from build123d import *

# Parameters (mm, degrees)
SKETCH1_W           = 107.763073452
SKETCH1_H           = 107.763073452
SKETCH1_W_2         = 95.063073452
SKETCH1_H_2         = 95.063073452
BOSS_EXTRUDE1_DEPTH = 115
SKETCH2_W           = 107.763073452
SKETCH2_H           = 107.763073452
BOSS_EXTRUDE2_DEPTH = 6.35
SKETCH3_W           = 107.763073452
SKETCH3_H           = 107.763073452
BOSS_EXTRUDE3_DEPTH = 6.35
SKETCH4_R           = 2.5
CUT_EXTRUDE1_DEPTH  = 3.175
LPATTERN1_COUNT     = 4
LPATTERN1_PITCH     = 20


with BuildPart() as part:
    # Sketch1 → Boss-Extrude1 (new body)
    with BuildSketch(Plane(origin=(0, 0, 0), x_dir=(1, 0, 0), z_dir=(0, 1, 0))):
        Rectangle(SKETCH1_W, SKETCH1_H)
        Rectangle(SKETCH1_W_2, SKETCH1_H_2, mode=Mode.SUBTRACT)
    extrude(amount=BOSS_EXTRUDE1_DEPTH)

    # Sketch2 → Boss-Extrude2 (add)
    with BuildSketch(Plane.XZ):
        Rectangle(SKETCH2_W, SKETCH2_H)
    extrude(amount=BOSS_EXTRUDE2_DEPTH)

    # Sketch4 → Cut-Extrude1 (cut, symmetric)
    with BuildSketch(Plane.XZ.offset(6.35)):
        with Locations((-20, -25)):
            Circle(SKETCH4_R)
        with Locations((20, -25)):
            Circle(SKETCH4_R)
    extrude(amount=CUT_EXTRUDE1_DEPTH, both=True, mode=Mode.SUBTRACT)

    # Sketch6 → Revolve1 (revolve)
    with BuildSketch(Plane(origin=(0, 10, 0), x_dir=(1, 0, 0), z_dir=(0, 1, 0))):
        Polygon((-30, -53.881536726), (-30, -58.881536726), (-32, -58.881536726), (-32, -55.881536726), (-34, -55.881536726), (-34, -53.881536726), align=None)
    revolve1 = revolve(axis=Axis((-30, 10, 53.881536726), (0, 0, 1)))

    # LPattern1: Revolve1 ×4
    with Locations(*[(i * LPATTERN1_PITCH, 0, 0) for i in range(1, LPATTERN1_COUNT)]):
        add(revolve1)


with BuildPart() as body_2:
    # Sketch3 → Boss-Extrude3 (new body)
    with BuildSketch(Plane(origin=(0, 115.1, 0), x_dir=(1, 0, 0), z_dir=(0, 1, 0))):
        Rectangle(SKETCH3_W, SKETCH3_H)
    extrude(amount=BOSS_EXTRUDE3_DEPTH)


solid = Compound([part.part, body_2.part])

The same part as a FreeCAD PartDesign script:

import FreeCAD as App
import Part
import Sketcher
Q = App.Units.Quantity


def add_polygon(sketch, points):
    """Adds a closed chain of lines whose ends are joined by coincident constraints."""
    first, n = sketch.GeometryCount, len(points)
    for a, b in zip(points, points[1:] + points[:1]):
        sketch.addGeometry(Part.LineSegment(App.Vector(*a, 0), App.Vector(*b, 0)), False)
    for i in range(n):
        sketch.addConstraint(Sketcher.Constraint("Coincident", first + i, 2, first + (i + 1) % n, 1))

doc = App.newDocument("Part")
body = doc.addObject("PartDesign::Body", "Body")

# Sketch on XZ plane
sketch1 = body.newObject("Sketcher::SketchObject", "Sketch")
sketch1.AttachmentSupport = (doc.getObject("XZ_Plane"), [""])
sketch1.MapMode = "FlatFace"
add_polygon(sketch1, [(-53.881537, -53.881537), (-53.881537, 53.881537), (53.881537, 53.881537), (53.881537, -53.881537)])  # lines 0-3
add_polygon(sketch1, [(47.531537, 47.531537), (-47.531537, 47.531537), (-47.531537, -47.531537), (47.531537, -47.531537)])  # lines 4-7
sketch1.addConstraint(Sketcher.Constraint("Vertical", 0))
sketch1.addConstraint(Sketcher.Constraint("Horizontal", 1))
sketch1.addConstraint(Sketcher.Constraint("Vertical", 2))
sketch1.addConstraint(Sketcher.Constraint("Horizontal", 3))
sketch1.addConstraint(Sketcher.Constraint("Horizontal", 4))
sketch1.addConstraint(Sketcher.Constraint("Vertical", 5))
sketch1.addConstraint(Sketcher.Constraint("Horizontal", 6))
sketch1.addConstraint(Sketcher.Constraint("Vertical", 7))
sketch1.addConstraint(Sketcher.Constraint("Symmetric", 0, 2, 2, 2, -1, 1))
sketch1.addConstraint(Sketcher.Constraint("Symmetric", 4, 2, 6, 2, -1, 1))
sketch1.addConstraint(Sketcher.Constraint("Equal", 3, 0))
sketch1.addConstraint(Sketcher.Constraint("Equal", 6, 5))
sketch1.addConstraint(Sketcher.Constraint("DistanceX", 0, 2, 4, 2, Q("6.35 mm")))
sketch1.addConstraint(Sketcher.Constraint("DistanceX", 1, 1, 1, 2, Q("107.763073 mm")))
pad1 = body.newObject("PartDesign::Pad", "Pad")
pad1.Profile = sketch1
pad1.Length = 115
pad1.Reversed = True

# Sketch on XZ plane
sketch2 = body.newObject("Sketcher::SketchObject", "Sketch001")
sketch2.AttachmentSupport = (doc.getObject("XZ_Plane"), [""])
sketch2.MapMode = "FlatFace"
add_polygon(sketch2, [(-53.881537, 53.881537), (-53.881537, -53.881537), (53.881537, -53.881537), (53.881537, 53.881537)])  # lines 0-3
sketch2.addConstraint(Sketcher.Constraint("Vertical", 0))
sketch2.addConstraint(Sketcher.Constraint("Horizontal", 1))
sketch2.addConstraint(Sketcher.Constraint("Vertical", 2))
sketch2.addConstraint(Sketcher.Constraint("Horizontal", 3))
sketch2.addConstraint(Sketcher.Constraint("Symmetric", 0, 2, 2, 2, -1, 1))
sketch2.addConstraint(Sketcher.Constraint("Equal", 3, 0))
sketch2.addConstraint(Sketcher.Constraint("DistanceX", 1, 1, 1, 2, Q("107.763073 mm")))
pad2 = body.newObject("PartDesign::Pad", "Pad001")
pad2.Profile = sketch2
pad2.Length = 6.35

# Sketch on XZ plane
sketch3 = body.newObject("Sketcher::SketchObject", "Sketch002")
sketch3.AttachmentSupport = (doc.getObject("XZ_Plane"), [""])
sketch3.MapMode = "FlatFace"
sketch3.AttachmentOffset = App.Placement(App.Vector(0, 0, 6.35), App.Rotation())
sketch3.addGeometry(Part.Circle(App.Vector(-20, -25, 0), App.Vector(0, 0, 1), 2.5), False)
sketch3.addGeometry(Part.Circle(App.Vector(20, -25, 0), App.Vector(0, 0, 1), 2.5), False)
sketch3.addConstraint(Sketcher.Constraint("Equal", 0, 1))
sketch3.addConstraint(Sketcher.Constraint("Symmetric", 0, 3, 1, 3, -2))
sketch3.addConstraint(Sketcher.Constraint("Diameter", 0, Q("5 mm")))
sketch3.addConstraint(Sketcher.Constraint("DistanceX", 0, 3, -1, 1, Q("20 mm")))
sketch3.addConstraint(Sketcher.Constraint("DistanceY", 0, 3, -1, 1, Q("25 mm")))
pocket1 = body.newObject("PartDesign::Pocket", "Pocket")
pocket1.Profile = sketch3
pocket1.Length = 6.35
pocket1.Midplane = True

# Sketch on XZ plane
sketch4 = body.newObject("Sketcher::SketchObject", "Sketch003")
sketch4.AttachmentSupport = (doc.getObject("XZ_Plane"), [""])
sketch4.MapMode = "FlatFace"
sketch4.AttachmentOffset = App.Placement(App.Vector(0, 0, -10), App.Rotation())
add_polygon(sketch4, [(-30, 58.881537), (-30, 53.881537), (-34, 53.881537), (-34, 55.881537), (-32, 55.881537), (-32, 58.881537)])  # lines 0-5
sketch4.addGeometry(Part.LineSegment(App.Vector(-30, 53.881537, 0), App.Vector(-30, 58.881537, 0)), True)  # axis
sketch4.addConstraint(Sketcher.Constraint("Vertical", 0))
sketch4.addConstraint(Sketcher.Constraint("Horizontal", 1))
sketch4.addConstraint(Sketcher.Constraint("Vertical", 2))
sketch4.addConstraint(Sketcher.Constraint("Horizontal", 3))
sketch4.addConstraint(Sketcher.Constraint("Vertical", 4))
sketch4.addConstraint(Sketcher.Constraint("Horizontal", 5))
sketch4.addConstraint(Sketcher.Constraint("Vertical", 6))
sketch4.addConstraint(Sketcher.Constraint("Coincident", 6, 1, 0, 2))
sketch4.addConstraint(Sketcher.Constraint("Horizontal", 4, 2, 6, 2))
sketch4.addConstraint(Sketcher.Constraint("Equal", 3, 5))
sketch4.addConstraint(Sketcher.Constraint("Equal", 5, 2))
sketch4.addConstraint(Sketcher.Constraint("DistanceX", 1, 2, 1, 1, Q("4 mm")))
sketch4.addConstraint(Sketcher.Constraint("DistanceY", 0, 2, 0, 1, Q("5 mm")))
sketch4.addConstraint(Sketcher.Constraint("DistanceX", 0, 2, -1, 1, Q("30 mm")))
sketch4.addConstraint(Sketcher.Constraint("DistanceY", -1, 1, 0, 2, Q("53.881537 mm")))
revolution = body.newObject("PartDesign::Revolution", "Revolution")
revolution.Profile = sketch4
revolution.ReferenceAxis = (sketch4, ["Axis0"])
revolution.Angle = 360
doc.recompute()

linearpattern = body.newObject("PartDesign::LinearPattern", "LinearPattern")
linearpattern.Originals = [revolution]
linearpattern.Direction = (doc.getObject("X_Axis"), [""])
linearpattern.Mode = "offset"
linearpattern.Offset = 20
linearpattern.Occurrences = 4
body.Tip = linearpattern
body2 = doc.addObject("PartDesign::Body", "Body001")

# Sketch on XZ plane
sketch5 = body2.newObject("Sketcher::SketchObject", "Sketch004")
sketch5.AttachmentSupport = (doc.getObject("XZ_Plane001"), [""])
sketch5.MapMode = "FlatFace"
sketch5.AttachmentOffset = App.Placement(App.Vector(0, 0, -115.1), App.Rotation())
add_polygon(sketch5, [(-53.881537, -53.881537), (-53.881537, 53.881537), (53.881537, 53.881537), (53.881537, -53.881537)])  # lines 0-3
sketch5.addConstraint(Sketcher.Constraint("Vertical", 0))
sketch5.addConstraint(Sketcher.Constraint("Horizontal", 1))
sketch5.addConstraint(Sketcher.Constraint("Vertical", 2))
sketch5.addConstraint(Sketcher.Constraint("Horizontal", 3))
sketch5.addConstraint(Sketcher.Constraint("Symmetric", 0, 2, 2, 2, -1, 1))
sketch5.addConstraint(Sketcher.Constraint("Equal", 3, 0))
sketch5.addConstraint(Sketcher.Constraint("DistanceX", 1, 1, 1, 2, Q("107.763073 mm")))
pad3 = body2.newObject("PartDesign::Pad", "Pad002")
pad3.Profile = sketch5
pad3.Length = 6.35
pad3.Reversed = True

doc.recompute()
